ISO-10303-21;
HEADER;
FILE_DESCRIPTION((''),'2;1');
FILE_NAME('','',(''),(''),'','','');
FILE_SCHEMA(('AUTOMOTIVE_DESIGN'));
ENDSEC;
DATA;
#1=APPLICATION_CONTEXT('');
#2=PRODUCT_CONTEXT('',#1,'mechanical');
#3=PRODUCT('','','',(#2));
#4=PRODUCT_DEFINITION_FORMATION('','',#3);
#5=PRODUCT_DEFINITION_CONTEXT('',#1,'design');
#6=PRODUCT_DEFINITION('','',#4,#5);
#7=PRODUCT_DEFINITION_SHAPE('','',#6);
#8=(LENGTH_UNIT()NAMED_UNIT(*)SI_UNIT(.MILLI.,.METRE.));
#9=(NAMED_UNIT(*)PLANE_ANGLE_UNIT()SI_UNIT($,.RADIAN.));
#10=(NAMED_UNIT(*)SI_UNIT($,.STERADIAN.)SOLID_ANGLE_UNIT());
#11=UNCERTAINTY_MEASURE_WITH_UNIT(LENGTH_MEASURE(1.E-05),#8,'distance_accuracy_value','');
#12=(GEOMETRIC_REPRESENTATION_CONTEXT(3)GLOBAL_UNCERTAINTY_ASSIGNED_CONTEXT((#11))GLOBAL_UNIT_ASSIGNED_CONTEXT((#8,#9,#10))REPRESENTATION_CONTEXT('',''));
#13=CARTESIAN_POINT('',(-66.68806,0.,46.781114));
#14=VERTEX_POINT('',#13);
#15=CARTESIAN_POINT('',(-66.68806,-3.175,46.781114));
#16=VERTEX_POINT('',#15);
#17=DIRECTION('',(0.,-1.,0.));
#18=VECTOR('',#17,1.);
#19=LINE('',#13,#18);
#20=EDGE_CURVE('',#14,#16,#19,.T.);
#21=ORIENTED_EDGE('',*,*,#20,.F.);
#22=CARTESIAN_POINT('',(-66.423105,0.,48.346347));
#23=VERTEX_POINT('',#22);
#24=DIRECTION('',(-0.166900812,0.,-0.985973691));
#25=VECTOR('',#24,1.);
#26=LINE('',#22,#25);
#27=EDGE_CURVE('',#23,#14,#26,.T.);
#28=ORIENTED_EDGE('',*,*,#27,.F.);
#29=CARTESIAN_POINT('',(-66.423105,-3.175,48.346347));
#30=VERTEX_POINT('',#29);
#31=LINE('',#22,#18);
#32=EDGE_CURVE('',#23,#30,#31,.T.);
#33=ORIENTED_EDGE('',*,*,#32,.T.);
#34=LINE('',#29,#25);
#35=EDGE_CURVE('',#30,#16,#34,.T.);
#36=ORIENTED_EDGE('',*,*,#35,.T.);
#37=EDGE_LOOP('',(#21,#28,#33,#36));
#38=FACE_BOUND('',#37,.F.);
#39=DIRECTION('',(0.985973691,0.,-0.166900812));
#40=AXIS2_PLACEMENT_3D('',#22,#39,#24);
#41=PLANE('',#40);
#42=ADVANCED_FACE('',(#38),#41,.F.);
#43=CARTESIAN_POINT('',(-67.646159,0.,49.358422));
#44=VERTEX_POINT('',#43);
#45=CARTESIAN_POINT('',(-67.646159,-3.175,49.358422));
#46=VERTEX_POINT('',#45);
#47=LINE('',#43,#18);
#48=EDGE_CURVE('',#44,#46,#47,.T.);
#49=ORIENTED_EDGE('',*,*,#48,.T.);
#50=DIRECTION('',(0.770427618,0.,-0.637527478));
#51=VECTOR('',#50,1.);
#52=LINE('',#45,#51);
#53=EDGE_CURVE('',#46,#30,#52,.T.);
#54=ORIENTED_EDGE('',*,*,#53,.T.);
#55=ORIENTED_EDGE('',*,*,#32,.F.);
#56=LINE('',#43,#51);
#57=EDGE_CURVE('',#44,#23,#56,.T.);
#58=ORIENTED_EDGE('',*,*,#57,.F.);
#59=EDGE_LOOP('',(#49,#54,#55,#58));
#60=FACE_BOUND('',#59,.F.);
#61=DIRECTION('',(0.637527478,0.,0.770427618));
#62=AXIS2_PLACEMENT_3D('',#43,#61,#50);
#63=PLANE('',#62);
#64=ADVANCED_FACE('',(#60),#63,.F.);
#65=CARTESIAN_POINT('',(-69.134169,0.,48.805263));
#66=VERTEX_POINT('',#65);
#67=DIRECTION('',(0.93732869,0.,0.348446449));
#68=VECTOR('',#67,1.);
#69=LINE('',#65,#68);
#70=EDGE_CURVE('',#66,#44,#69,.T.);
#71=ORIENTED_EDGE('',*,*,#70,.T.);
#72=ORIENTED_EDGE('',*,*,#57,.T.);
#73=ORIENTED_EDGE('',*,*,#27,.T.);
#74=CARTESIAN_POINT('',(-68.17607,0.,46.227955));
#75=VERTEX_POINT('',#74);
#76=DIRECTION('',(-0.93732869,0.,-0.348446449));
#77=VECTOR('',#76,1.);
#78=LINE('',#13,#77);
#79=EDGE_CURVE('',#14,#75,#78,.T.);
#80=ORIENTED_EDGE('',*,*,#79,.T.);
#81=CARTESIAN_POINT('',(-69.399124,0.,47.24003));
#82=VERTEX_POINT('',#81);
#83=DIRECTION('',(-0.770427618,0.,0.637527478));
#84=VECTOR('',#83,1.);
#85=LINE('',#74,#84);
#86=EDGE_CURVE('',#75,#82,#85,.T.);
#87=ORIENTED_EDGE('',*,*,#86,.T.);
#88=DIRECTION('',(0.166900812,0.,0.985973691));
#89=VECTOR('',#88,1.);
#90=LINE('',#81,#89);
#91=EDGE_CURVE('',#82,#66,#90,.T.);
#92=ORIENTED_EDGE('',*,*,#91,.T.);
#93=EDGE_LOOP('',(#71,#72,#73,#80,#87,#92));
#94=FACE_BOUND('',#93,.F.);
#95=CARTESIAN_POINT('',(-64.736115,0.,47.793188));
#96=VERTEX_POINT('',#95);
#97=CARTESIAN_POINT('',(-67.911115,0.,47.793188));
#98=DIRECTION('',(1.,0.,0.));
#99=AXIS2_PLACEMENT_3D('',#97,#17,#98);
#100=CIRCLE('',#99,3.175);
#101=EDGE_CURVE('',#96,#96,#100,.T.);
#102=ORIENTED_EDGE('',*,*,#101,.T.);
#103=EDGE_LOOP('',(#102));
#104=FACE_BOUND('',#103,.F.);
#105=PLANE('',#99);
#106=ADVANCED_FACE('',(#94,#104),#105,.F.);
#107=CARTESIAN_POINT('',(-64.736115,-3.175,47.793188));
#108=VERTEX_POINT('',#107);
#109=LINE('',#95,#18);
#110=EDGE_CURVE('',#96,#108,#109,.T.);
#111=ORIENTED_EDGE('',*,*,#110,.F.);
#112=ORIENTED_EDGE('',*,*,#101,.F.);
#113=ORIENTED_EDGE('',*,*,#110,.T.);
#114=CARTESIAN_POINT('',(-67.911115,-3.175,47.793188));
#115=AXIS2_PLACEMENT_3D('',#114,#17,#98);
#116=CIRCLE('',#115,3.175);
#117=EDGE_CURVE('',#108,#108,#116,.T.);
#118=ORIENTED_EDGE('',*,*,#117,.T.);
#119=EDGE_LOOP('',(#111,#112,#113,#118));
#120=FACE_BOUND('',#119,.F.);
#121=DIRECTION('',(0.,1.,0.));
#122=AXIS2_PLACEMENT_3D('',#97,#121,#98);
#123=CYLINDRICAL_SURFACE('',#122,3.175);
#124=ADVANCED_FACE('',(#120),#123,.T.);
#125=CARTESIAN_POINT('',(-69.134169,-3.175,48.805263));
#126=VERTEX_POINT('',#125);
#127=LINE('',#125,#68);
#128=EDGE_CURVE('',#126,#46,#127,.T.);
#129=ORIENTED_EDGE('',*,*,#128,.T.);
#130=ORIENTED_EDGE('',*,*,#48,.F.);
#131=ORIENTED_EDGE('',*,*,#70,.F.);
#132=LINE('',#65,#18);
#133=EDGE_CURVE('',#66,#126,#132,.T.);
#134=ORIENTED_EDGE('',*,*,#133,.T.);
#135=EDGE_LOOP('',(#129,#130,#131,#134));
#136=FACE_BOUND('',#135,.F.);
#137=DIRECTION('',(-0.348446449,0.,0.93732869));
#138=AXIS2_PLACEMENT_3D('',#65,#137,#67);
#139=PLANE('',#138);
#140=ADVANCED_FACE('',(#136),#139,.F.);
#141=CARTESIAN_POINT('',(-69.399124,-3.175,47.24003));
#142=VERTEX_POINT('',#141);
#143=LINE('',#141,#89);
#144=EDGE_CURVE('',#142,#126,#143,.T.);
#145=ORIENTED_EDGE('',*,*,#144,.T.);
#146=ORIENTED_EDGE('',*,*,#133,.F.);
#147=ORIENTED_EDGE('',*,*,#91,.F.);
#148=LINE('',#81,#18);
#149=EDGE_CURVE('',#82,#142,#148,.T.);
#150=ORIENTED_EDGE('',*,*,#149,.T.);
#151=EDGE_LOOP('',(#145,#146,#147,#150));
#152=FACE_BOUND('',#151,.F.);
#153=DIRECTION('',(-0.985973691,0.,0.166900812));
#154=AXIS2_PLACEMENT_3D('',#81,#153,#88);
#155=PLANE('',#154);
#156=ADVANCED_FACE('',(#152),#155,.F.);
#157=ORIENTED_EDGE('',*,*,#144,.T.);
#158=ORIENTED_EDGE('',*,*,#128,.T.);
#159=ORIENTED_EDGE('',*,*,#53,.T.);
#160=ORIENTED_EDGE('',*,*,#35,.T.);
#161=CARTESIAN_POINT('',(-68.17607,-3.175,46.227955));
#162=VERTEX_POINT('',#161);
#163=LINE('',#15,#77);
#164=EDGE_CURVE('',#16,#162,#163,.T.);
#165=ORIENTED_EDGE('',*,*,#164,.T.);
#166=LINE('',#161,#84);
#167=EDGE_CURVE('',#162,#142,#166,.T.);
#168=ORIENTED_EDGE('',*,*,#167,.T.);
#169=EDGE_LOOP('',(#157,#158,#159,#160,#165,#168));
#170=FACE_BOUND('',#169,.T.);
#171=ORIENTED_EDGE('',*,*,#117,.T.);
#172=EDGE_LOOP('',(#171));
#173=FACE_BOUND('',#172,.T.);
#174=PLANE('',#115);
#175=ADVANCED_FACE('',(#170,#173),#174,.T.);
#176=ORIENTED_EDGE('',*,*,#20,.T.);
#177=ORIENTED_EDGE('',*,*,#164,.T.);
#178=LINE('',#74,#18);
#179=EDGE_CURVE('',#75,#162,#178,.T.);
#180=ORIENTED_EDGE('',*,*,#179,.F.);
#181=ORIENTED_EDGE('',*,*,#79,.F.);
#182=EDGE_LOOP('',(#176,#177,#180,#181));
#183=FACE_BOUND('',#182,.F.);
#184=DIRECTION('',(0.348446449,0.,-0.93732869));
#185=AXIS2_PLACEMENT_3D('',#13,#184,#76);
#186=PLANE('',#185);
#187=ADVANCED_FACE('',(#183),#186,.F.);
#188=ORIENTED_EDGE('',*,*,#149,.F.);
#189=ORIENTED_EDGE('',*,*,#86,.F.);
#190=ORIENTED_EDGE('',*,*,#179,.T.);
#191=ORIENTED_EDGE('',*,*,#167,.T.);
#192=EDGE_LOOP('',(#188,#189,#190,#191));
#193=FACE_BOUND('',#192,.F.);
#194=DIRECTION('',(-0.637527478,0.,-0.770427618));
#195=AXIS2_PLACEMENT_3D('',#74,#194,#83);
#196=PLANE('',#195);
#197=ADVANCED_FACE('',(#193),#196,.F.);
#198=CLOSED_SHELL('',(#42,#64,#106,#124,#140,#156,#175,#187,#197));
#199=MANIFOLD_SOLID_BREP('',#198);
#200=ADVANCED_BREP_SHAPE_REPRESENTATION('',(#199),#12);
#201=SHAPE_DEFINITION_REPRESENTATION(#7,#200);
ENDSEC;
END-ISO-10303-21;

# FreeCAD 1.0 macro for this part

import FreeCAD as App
import Part
import Sketcher
Q = App.Units.Quantity

doc = App.newDocument("Part")
body = doc.addObject("PartDesign::Body", "Body")

# Sketch on XZ plane
sketch1 = doc.addObject("Sketcher::SketchObject", "Sketch")
body.addObject(sketch1)
sketch1.AttachmentSupport = (doc.XZ_Plane, [""])
sketch1.MapMode = "FlatFace"
sketch1.addGeometry([
    Part.Circle(App.Vector(-67.911115, 47.793188, 0), App.Vector(0, 0, 1), 3.175),  # 0
    Part.LineSegment(App.Vector(-67.646159, 49.358422, 0), App.Vector(-66.423105, 48.346347, 0)),  # 1
    Part.LineSegment(App.Vector(-66.423105, 48.346347, 0), App.Vector(-66.68806, 46.781114, 0)),  # 2
    Part.LineSegment(App.Vector(-66.68806, 46.781114, 0), App.Vector(-68.17607, 46.227955, 0)),  # 3
    Part.LineSegment(App.Vector(-68.17607, 46.227955, 0), App.Vector(-69.399124, 47.24003, 0)),  # 4
    Part.LineSegment(App.Vector(-69.399124, 47.24003, 0), App.Vector(-69.134169, 48.805263, 0)),  # 5
    Part.LineSegment(App.Vector(-69.134169, 48.805263, 0), App.Vector(-67.646159, 49.358422, 0)),  # 6
], False)
sketch1.addConstraint([
    Sketcher.Constraint("Coincident", 1, 2, 2, 1),
    Sketcher.Constraint("Coincident", 2, 2, 3, 1),
    Sketcher.Constraint("Coincident", 3, 2, 4, 1),
    Sketcher.Constraint("Coincident", 4, 2, 5, 1),
    Sketcher.Constraint("Coincident", 5, 2, 6, 1),
    Sketcher.Constraint("Coincident", 6, 2, 1, 1),
    Sketcher.Constraint("Parallel", 1, 4),
    Sketcher.Constraint("Parallel", 2, 5),
    Sketcher.Constraint("Parallel", 3, 6),
    Sketcher.Constraint("Equal", 1, 2),
    Sketcher.Constraint("Equal", 2, 3),
    Sketcher.Constraint("Equal", 3, 4),
    Sketcher.Constraint("Diameter", 0, Q("0.25 in")),
    Sketcher.Constraint("Distance", 1, Q("0.0625 in")),
    Sketcher.Constraint("DistanceX", 5, 2, 3, 2, Q("0.958099 mm")),
    Sketcher.Constraint("DistanceX", 2, 2, -1, 1, Q("66.68806 mm")),
    Sketcher.Constraint("DistanceX", 3, 2, -1, 1, Q("68.17607 mm")),
    Sketcher.Constraint("DistanceY", -1, 1, 4, 2, Q("47.24003 mm")),
    Sketcher.Constraint("DistanceY", -1, 1, 6, 2, Q("49.358422 mm")),
    Sketcher.Constraint("DistanceX", 0, 3, 1, 2, Q("1.48801 mm")),
    Sketcher.Constraint("DistanceY", 0, 3, 1, 2, Q("0.553159 mm")),
])
pad1 = doc.addObject("PartDesign::Pad", "Pad")
body.addObject(pad1)
pad1.Profile = sketch1
pad1.Length = Q("0.125 in")

doc.recompute()
